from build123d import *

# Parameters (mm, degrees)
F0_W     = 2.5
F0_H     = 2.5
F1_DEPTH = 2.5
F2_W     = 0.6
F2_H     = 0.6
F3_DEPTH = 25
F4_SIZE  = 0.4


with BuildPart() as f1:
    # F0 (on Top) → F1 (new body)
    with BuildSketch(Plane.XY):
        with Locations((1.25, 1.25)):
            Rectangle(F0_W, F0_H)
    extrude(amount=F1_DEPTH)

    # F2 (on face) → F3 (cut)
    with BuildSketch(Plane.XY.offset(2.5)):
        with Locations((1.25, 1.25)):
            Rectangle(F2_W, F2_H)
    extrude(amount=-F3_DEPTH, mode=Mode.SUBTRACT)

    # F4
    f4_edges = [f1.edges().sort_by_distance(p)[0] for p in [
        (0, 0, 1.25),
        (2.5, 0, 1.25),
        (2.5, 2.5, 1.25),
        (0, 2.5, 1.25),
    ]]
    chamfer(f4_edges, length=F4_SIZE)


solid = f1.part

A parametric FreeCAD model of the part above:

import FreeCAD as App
import Part
import Sketcher


def edges_at(feature, points):
    """Names of the edges that pass closest to the given points."""
    edges = feature.Shape.Edges
    near = lambda p: min(range(len(edges)), key=lambda i: edges[i].distToShape(Part.Vertex(*p))[0])
    return sorted({f"Edge{near(p) + 1}" for p in points})


def add_polygon(sketch, points):
    """Adds a closed chain of lines whose ends are joined by coincident constraints."""
    first, n = sketch.GeometryCount, len(points)
    for a, b in zip(points, points[1:] + points[:1]):
        sketch.addGeometry(Part.LineSegment(App.Vector(*a, 0), App.Vector(*b, 0)), False)
    for i in range(n):
        sketch.addConstraint(Sketcher.Constraint("Coincident", first + i, 2, first + (i + 1) % n, 1))

doc = App.newDocument("Part")
params = doc.addObject("Spreadsheet::Sheet", "Params")
for row, (alias, value) in enumerate([
    ("sketch1_width", "2.5 mm"),
    ("pad1_length", "2.5 mm"),
    ("sketch2_width", "0.6 mm"),
    ("pocket1_length", "25 mm"),
    ("chamfer_size", "0.4 mm"),
], start=1):
    params.set(f"A{row}", alias)
    params.set(f"B{row}", "=" + value)
    params.setAlias(f"B{row}", alias)

body = doc.addObject("PartDesign::Body", "Body")

# Sketch on XY plane
sketch1 = body.newObject("Sketcher::SketchObject", "Sketch")
sketch1.AttachmentSupport = (doc.getObject("XY_Plane"), [""])
sketch1.MapMode = "FlatFace"
add_polygon(sketch1, [(0, 2.5), (0, 0), (2.5, 0), (2.5, 2.5)])  # lines 0-3
sketch1.addConstraint([
    Sketcher.Constraint("Vertical", 0),
    Sketcher.Constraint("Horizontal", 1),
    Sketcher.Constraint("Vertical", 2),
    Sketcher.Constraint("Horizontal", 3),
    Sketcher.Constraint("Coincident", 0, 2, -1, 1),
    Sketcher.Constraint("Equal", 3, 0),
    Sketcher.Constraint("DistanceX", 1, 1, 1, 2, 2.5),
])
sketch1.setExpression("Constraints[10]", "Params.sketch1_width")
pad1 = body.newObject("PartDesign::Pad", "Pad")
pad1.Profile = sketch1
pad1.setExpression("Length", "Params.pad1_length")

# Sketch on XY plane
sketch2 = body.newObject("Sketcher::SketchObject", "Sketch001")
sketch2.AttachmentSupport = (doc.getObject("XY_Plane"), [""])
sketch2.MapMode = "FlatFace"
sketch2.AttachmentOffset = App.Placement(App.Vector(0, 0, 2.5), App.Rotation())
add_polygon(sketch2, [(0.9, 1.6), (0.9, 0.9), (1.6, 0.9), (1.6, 1.6)])  # lines 0-3
sketch2.addConstraint([
    Sketcher.Constraint("Vertical", 0),
    Sketcher.Constraint("Horizontal", 1),
    Sketcher.Constraint("Vertical", 2),
    Sketcher.Constraint("Horizontal", 3),
    Sketcher.Constraint("Equal", 3, 0),
    Sketcher.Constraint("DistanceX", 1, 1, 1, 2, 0.6),
    Sketcher.Constraint("DistanceX", -1, 1, 0, 2, 0.95),
    Sketcher.Constraint("DistanceY", -1, 1, 0, 2, 0.95),
])
sketch2.setExpression("Constraints[9]", "Params.sketch2_width")
pocket1 = body.newObject("PartDesign::Pocket", "Pocket")
pocket1.Profile = sketch2
pocket1.setExpression("Length", "Params.pocket1_length")
doc.recompute()

chamfer = body.newObject("PartDesign::Chamfer", "Chamfer")
chamfer.Base = (pocket1, edges_at(pocket1, [
    (0, 0, 1.25),
    (2.5, 0, 1.25),
    (2.5, 2.5, 1.25),
    (0, 2.5, 1.25),
]))
chamfer.setExpression("Size", "Params.chamfer_size")

doc.recompute()
